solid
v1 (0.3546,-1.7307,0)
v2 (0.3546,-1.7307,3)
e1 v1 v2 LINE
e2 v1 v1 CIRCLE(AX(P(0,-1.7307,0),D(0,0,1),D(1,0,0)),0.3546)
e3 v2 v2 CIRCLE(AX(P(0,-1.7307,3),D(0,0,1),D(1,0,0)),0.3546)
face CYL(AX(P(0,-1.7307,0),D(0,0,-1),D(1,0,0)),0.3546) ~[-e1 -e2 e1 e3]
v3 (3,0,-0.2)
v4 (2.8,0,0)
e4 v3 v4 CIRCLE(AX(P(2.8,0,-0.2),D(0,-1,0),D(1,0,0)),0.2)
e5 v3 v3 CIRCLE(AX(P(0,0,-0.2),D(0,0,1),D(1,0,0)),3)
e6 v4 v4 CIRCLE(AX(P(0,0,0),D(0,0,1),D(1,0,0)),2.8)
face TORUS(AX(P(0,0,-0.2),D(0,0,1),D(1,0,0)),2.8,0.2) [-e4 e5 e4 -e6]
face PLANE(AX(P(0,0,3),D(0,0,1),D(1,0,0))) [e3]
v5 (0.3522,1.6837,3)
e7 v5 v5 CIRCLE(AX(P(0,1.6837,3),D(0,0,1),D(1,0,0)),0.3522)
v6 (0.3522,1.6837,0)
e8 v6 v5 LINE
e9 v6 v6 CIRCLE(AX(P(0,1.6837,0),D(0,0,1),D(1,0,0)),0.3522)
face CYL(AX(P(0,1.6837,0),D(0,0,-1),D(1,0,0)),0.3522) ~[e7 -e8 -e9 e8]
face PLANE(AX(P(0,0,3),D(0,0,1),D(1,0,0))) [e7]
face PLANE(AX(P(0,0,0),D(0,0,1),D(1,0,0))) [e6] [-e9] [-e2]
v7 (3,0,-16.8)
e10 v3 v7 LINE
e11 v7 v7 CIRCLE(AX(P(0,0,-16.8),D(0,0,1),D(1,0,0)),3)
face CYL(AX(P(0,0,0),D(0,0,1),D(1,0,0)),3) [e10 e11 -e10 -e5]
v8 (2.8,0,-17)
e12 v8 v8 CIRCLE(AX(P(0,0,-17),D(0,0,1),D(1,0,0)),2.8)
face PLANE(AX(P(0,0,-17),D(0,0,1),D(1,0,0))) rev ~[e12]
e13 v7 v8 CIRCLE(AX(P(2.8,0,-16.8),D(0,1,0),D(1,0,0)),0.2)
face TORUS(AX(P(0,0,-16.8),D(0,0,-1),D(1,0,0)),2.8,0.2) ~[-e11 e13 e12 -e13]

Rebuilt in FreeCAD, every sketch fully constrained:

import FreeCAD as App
import Part
import Sketcher

V = App.Vector
Q = App.Units.Quantity


def edges_at(feature, points):
    """Names of the edges that pass closest to the given points."""
    edges = feature.Shape.Edges
    near = lambda p: min(range(len(edges)), key=lambda i: edges[i].distToShape(Part.Vertex(*p))[0])
    return sorted({f"Edge{near(p) + 1}" for p in points})

doc = App.newDocument("Part")
body = doc.addObject("PartDesign::Body", "Body")

# Sketch on XY plane
sketch1 = body.newObject("Sketcher::SketchObject", "Sketch")
sketch1.AttachmentSupport = (doc.getObject("XY_Plane"), [""])
sketch1.MapMode = "FlatFace"
sketch1.addGeometry(Part.Circle(V(0, 0, 0), V(0, 0, 1), 3), False)
sketch1.addConstraint(Sketcher.Constraint("Coincident", 0, 3, -1, 1))
sketch1.addConstraint(Sketcher.Constraint("Diameter", 0, Q("6 mm")))
pad1 = body.newObject("PartDesign::Pad", "Pad")
pad1.Profile = sketch1
pad1.Length = 17
pad1.Reversed = True

# Sketch on XY plane
sketch2 = body.newObject("Sketcher::SketchObject", "Sketch001")
sketch2.AttachmentSupport = (doc.getObject("XY_Plane"), [""])
sketch2.MapMode = "FlatFace"
sketch2.addGeometry(Part.Circle(V(0, 1.6837, 0), V(0, 0, 1), 0.3522), False)
sketch2.addGeometry(Part.Circle(V(0, -1.7307, 0), V(0, 0, 1), 0.3546), False)
sketch2.addConstraint(Sketcher.Constraint("PointOnObject", 0, 3, -2))
sketch2.addConstraint(Sketcher.Constraint("PointOnObject", 1, 3, -2))
sketch2.addConstraint(Sketcher.Constraint("Diameter", 0, Q("0.7044 mm")))
sketch2.addConstraint(Sketcher.Constraint("Diameter", 1, Q("0.7092 mm")))
sketch2.addConstraint(Sketcher.Constraint("DistanceY", -1, 1, 0, 3, Q("1.6837 mm")))
sketch2.addConstraint(Sketcher.Constraint("DistanceY", 1, 3, -1, 1, Q("1.7307 mm")))
pad2 = body.newObject("PartDesign::Pad", "Pad001")
pad2.Profile = sketch2
pad2.Length = 3
doc.recompute()

fillet = body.newObject("PartDesign::Fillet", "Fillet")
fillet.Base = (pad2, edges_at(pad2, [(-3, 0, 0), (-3, 0, -17)]))
fillet.Radius = 0.2

doc.recompute()
